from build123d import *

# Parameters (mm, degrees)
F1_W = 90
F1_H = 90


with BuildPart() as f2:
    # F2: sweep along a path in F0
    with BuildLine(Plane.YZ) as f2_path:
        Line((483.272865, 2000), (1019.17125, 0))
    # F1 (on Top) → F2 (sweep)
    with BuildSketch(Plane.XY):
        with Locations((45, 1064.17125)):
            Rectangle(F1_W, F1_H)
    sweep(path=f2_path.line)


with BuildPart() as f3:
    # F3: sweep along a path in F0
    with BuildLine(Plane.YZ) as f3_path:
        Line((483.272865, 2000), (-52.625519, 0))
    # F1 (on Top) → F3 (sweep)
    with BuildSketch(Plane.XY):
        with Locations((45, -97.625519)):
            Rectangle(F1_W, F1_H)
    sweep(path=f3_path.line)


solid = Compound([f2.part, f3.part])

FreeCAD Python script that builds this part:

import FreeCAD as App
import Part
import Sketcher

V = App.Vector
Q = App.Units.Quantity

doc = App.newDocument("Part")
body = doc.addObject("PartDesign::Body", "Body")

sketch1 = doc.addObject("Sketcher::SketchObject", "Sketch")
body.addObject(sketch1)
sketch1.AttachmentSupport = (doc.XY_Plane, [""])
sketch1.MapMode = "FlatFace"
sketch1.addGeometry(Part.LineSegment(V(0, 1109.17125, 0), V(0, 1019.17125, 0)), False)
sketch1.addGeometry(Part.LineSegment(V(0, 1019.17125, 0), V(90, 1019.17125, 0)), False)
sketch1.addGeometry(Part.LineSegment(V(90, 1019.17125, 0), V(90, 1109.17125, 0)), False)
sketch1.addGeometry(Part.LineSegment(V(90, 1109.17125, 0), V(0, 1109.17125, 0)), False)
sketch1.addConstraint(Sketcher.Constraint("Coincident", 0, 2, 1, 1))
sketch1.addConstraint(Sketcher.Constraint("Coincident", 1, 2, 2, 1))
sketch1.addConstraint(Sketcher.Constraint("Coincident", 2, 2, 3, 1))
sketch1.addConstraint(Sketcher.Constraint("Coincident", 3, 2, 0, 1))
sketch1.addConstraint(Sketcher.Constraint("Vertical", 0))
sketch1.addConstraint(Sketcher.Constraint("Horizontal", 1))
sketch1.addConstraint(Sketcher.Constraint("Vertical", 2))
sketch1.addConstraint(Sketcher.Constraint("Horizontal", 3))
sketch1.addConstraint(Sketcher.Constraint("PointOnObject", 0, 2, -2))
sketch1.addConstraint(Sketcher.Constraint("Equal", 3, 0))
sketch1.addConstraint(Sketcher.Constraint("DistanceX", 1, 1, 1, 2, Q("90 mm")))
sketch1.addConstraint(Sketcher.Constraint("DistanceY", -1, 1, 0, 2, Q("1019.17125 mm")))

sketch2 = doc.addObject("Sketcher::SketchObject", "Sketch001")
body.addObject(sketch2)
sketch2.Placement = App.Placement(V(0, 950.899722, 254.792813), App.Rotation(V(0, -0.258819045, 0.965925826), V(0.999999999, 0, 0), V(0, 0.965925826, 0.258819045), "ZXY"))
sketch2.addGeometry(Part.LineSegment(V(1806.77143, 0, 0), V(-263.78093, 0, 0)), False)
sketch2.addConstraint(Sketcher.Constraint("Horizontal", 0))
sketch2.addConstraint(Sketcher.Constraint("PointOnObject", 0, 1, -1))
sketch2.addConstraint(Sketcher.Constraint("DistanceX", 0, 2, 0, 1, Q("2070.55236 mm")))
sketch2.addConstraint(Sketcher.Constraint("DistanceX", -1, 1, 0, 1, Q("1806.77143 mm")))
doc.recompute()

additivepipe = doc.addObject("PartDesign::AdditivePipe", "AdditivePipe")
body.addObject(additivepipe)
additivepipe.Profile = sketch1
additivepipe.Spine = (sketch2, ["Edge1"])
body2 = doc.addObject("PartDesign::Body", "Body001")

sketch3 = doc.addObject("Sketcher::SketchObject", "Sketch002")
body2.addObject(sketch3)
sketch3.AttachmentSupport = (doc.getObject("XY_Plane001"), [""])
sketch3.MapMode = "FlatFace"
sketch3.addGeometry(Part.LineSegment(V(0, -52.625519, 0), V(0, -142.625519, 0)), False)
sketch3.addGeometry(Part.LineSegment(V(0, -142.625519, 0), V(90, -142.625519, 0)), False)
sketch3.addGeometry(Part.LineSegment(V(90, -142.625519, 0), V(90, -52.625519, 0)), False)
sketch3.addGeometry(Part.LineSegment(V(90, -52.625519, 0), V(0, -52.625519, 0)), False)
sketch3.addConstraint(Sketcher.Constraint("Coincident", 0, 2, 1, 1))
sketch3.addConstraint(Sketcher.Constraint("Coincident", 1, 2, 2, 1))
sketch3.addConstraint(Sketcher.Constraint("Coincident", 2, 2, 3, 1))
sketch3.addConstraint(Sketcher.Constraint("Coincident", 3, 2, 0, 1))
sketch3.addConstraint(Sketcher.Constraint("Vertical", 0))
sketch3.addConstraint(Sketcher.Constraint("Horizontal", 1))
sketch3.addConstraint(Sketcher.Constraint("Vertical", 2))
sketch3.addConstraint(Sketcher.Constraint("Horizontal", 3))
sketch3.addConstraint(Sketcher.Constraint("PointOnObject", 0, 2, -2))
sketch3.addConstraint(Sketcher.Constraint("Equal", 3, 0))
sketch3.addConstraint(Sketcher.Constraint("DistanceX", 1, 1, 1, 2, Q("90 mm")))
sketch3.addConstraint(Sketcher.Constraint("DistanceY", 0, 2, -1, 1, Q("142.625519 mm")))

sketch4 = doc.addObject("Sketcher::SketchObject", "Sketch003")
body2.addObject(sketch4)
sketch4.Placement = App.Placement(V(0, -49.100278, 13.15638), App.Rotation(V(0, -0.258819045, -0.965925826), V(0.999999999, 0, 0), V(0, -0.965925826, 0.258819045), "ZXY"))
sketch4.addGeometry(Part.LineSegment(V(-2056.931873, 0, 0), V(13.620487, 0, 0)), False)
sketch4.addConstraint(Sketcher.Constraint("Horizontal", 0))
sketch4.addConstraint(Sketcher.Constraint("PointOnObject", 0, 1, -1))
sketch4.addConstraint(Sketcher.Constraint("DistanceX", 0, 1, 0, 2, Q("2070.552359 mm")))
sketch4.addConstraint(Sketcher.Constraint("DistanceX", 0, 1, -1, 1, Q("2056.931873 mm")))
doc.recompute()

additivepipe2 = doc.addObject("PartDesign::AdditivePipe", "AdditivePipe001")
body2.addObject(additivepipe2)
additivepipe2.Profile = sketch3
additivepipe2.Spine = (sketch4, ["Edge1"])

doc.recompute()
